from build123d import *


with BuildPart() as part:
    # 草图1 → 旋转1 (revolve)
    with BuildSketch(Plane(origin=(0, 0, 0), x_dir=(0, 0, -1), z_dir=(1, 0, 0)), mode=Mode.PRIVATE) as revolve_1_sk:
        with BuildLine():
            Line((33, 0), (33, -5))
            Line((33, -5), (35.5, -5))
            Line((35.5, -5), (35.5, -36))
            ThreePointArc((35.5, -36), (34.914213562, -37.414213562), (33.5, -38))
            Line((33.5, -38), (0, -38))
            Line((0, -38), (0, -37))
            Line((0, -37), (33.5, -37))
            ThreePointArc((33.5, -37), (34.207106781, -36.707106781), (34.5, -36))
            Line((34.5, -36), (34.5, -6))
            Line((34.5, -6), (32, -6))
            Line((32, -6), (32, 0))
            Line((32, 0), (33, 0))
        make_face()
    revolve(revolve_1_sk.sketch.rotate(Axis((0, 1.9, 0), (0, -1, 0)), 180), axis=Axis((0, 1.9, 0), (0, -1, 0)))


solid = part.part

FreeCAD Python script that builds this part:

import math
import FreeCAD as App
import Part
import Sketcher
from FreeCAD import Vector

doc = App.newDocument("Part")
body = doc.addObject("PartDesign::Body", "Body")

# Sketch on YZ plane
sketch1 = body.newObject("Sketcher::SketchObject", "Sketch")
sketch1.AttachmentSupport = (doc.getObject("YZ_Plane"), [""])
sketch1.MapMode = "FlatFace"
sketch1.addGeometry([
    Part.LineSegment(Vector(-5, -33, 0), Vector(0, -33, 0)),  # 0
    Part.LineSegment(Vector(0, -33, 0), Vector(0, -32, 0)),  # 1
    Part.LineSegment(Vector(0, -32, 0), Vector(-6, -32, 0)),  # 2
    Part.LineSegment(Vector(-6, -32, 0), Vector(-6, -34.5, 0)),  # 3
    Part.LineSegment(Vector(-6, -34.5, 0), Vector(-36, -34.5, 0)),  # 4
    Part.ArcOfCircle(Part.Circle(Vector(-36, -33.5, 0), Vector(0, 0, 1), 1), math.radians(-180), math.radians(-90)),  # 5
    Part.LineSegment(Vector(-37, -33.5, 0), Vector(-37, 0, 0)),  # 6
    Part.LineSegment(Vector(-37, 0, 0), Vector(-38, 0, 0)),  # 7
    Part.LineSegment(Vector(-38, 0, 0), Vector(-38, -33.5, 0)),  # 8
    Part.ArcOfCircle(Part.Circle(Vector(-36, -33.5, 0), Vector(0, 0, 1), 2), math.radians(-180), math.radians(-90)),  # 9
    Part.LineSegment(Vector(-36, -35.5, 0), Vector(-5, -35.5, 0)),  # 10
    Part.LineSegment(Vector(-5, -35.5, 0), Vector(-5, -33, 0)),  # 11
], False)
sketch1.addConstraint([
    Sketcher.Constraint("Coincident", 0, 2, 1, 1),
    Sketcher.Constraint("Coincident", 1, 2, 2, 1),
    Sketcher.Constraint("Coincident", 2, 2, 3, 1),
    Sketcher.Constraint("Coincident", 3, 2, 4, 1),
    Sketcher.Constraint("Tangent", 4, 2, 5, 2),
    Sketcher.Constraint("Tangent", 5, 1, 6, 1),
    Sketcher.Constraint("Coincident", 6, 2, 7, 1),
    Sketcher.Constraint("Coincident", 7, 2, 8, 1),
    Sketcher.Constraint("Tangent", 8, 2, 9, 1),
    Sketcher.Constraint("Tangent", 9, 2, 10, 1),
    Sketcher.Constraint("Coincident", 10, 2, 11, 1),
    Sketcher.Constraint("Coincident", 11, 2, 0, 1),
    Sketcher.Constraint("Horizontal", 0),
    Sketcher.Constraint("Vertical", 1),
    Sketcher.Constraint("Horizontal", 2),
    Sketcher.Constraint("Vertical", 3),
    Sketcher.Constraint("Horizontal", 4),
    Sketcher.Constraint("Vertical", 6),
    Sketcher.Constraint("Horizontal", 7),
    Sketcher.Constraint("Vertical", 8),
    Sketcher.Constraint("Horizontal", 10),
    Sketcher.Constraint("Vertical", 11),
    Sketcher.Constraint("Coincident", 9, 3, 5, 3),
    Sketcher.Constraint("PointOnObject", 0, 2, -2),
    Sketcher.Constraint("PointOnObject", 6, 2, -1),
    Sketcher.Constraint("Equal", 7, 1),
    Sketcher.Constraint("Radius", 5, 1.0),
    Sketcher.Constraint("Radius", 9, 2.0),
    Sketcher.Constraint("DistanceX", 0, 1, 0, 2, 5.0),
    Sketcher.Constraint("DistanceX", 2, 2, 2, 1, 6.0),
    Sketcher.Constraint("DistanceX", 4, 2, 4, 1, 30.0),
    Sketcher.Constraint("DistanceY", 3, 2, 3, 1, 2.5),
    Sketcher.Constraint("DistanceY", 6, 1, 6, 2, 33.5),
])
revolution = body.newObject("PartDesign::Revolution", "Revolution")
revolution.Profile = sketch1
revolution.ReferenceAxis = (sketch1, ["H_Axis"])
revolution.Angle = 360

doc.recompute()
